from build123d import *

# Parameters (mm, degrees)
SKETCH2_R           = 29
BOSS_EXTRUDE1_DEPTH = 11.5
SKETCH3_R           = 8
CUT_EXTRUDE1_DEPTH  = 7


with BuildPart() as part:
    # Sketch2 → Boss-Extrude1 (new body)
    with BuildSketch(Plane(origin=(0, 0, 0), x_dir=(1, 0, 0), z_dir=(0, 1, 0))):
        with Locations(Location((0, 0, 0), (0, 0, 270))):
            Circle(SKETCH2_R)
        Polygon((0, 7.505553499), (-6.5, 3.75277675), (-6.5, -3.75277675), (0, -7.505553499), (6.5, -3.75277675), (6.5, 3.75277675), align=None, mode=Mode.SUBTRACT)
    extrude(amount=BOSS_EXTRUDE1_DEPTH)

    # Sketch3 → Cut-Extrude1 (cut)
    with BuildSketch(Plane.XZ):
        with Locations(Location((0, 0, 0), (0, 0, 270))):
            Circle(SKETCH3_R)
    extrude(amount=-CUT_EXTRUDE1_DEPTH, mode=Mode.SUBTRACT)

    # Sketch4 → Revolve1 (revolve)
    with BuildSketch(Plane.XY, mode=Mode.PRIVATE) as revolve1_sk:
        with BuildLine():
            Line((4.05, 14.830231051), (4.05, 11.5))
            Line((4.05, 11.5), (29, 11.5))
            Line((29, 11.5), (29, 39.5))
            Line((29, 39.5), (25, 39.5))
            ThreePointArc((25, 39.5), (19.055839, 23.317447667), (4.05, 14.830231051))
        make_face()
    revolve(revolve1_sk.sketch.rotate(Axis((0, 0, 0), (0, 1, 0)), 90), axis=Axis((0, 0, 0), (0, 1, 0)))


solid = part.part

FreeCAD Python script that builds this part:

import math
import FreeCAD as App
import Part
import Sketcher

V = App.Vector
Q = App.Units.Quantity

doc = App.newDocument("Part")
body = doc.addObject("PartDesign::Body", "Body")

sketch1 = body.newObject("Sketcher::SketchObject", "Sketch")
sketch1.AttachmentSupport = (doc.getObject("XZ_Plane"), [""])
sketch1.MapMode = "FlatFace"
sketch1.addGeometry([
    Part.Circle(V(0, 0, 0), V(0, 0, 1), 29),
    Part.LineSegment(V(-6, -4, 0), V(0, -8, 0)),
    Part.LineSegment(V(0, -8, 0), V(6, -4, 0)),
    Part.LineSegment(V(6, -4, 0), V(6, 4, 0)),
    Part.LineSegment(V(6, 4, 0), V(0, 8, 0)),
    Part.LineSegment(V(0, 8, 0), V(-6, 4, 0)),
    Part.LineSegment(V(-6, 4, 0), V(-6, -4, 0)),
], False)
sketch1.addConstraint([
    Sketcher.Constraint("Coincident", 1, 2, 2, 1),
    Sketcher.Constraint("Coincident", 2, 2, 3, 1),
    Sketcher.Constraint("Coincident", 3, 2, 4, 1),
    Sketcher.Constraint("Coincident", 4, 2, 5, 1),
    Sketcher.Constraint("Coincident", 5, 2, 6, 1),
    Sketcher.Constraint("Coincident", 6, 2, 1, 1),
    Sketcher.Constraint("Vertical", 3),
    Sketcher.Constraint("Vertical", 6),
    Sketcher.Constraint("Coincident", 0, 3, -1, 1),
    Sketcher.Constraint("Symmetric", 1, 2, 4, 2, -1, 1),
    Sketcher.Constraint("Symmetric", 2, 2, 5, 2, -1, 1),
    Sketcher.Constraint("PointOnObject", 1, 2, -2),
    Sketcher.Constraint("Parallel", 1, 4),
    Sketcher.Constraint("Horizontal", 3, 2, 5, 2),
    Sketcher.Constraint("Diameter", 0, 58.0),
    Sketcher.Constraint("Angle", 1, Q("-30 deg")),
    Sketcher.Constraint("DistanceX", 5, 2, 3, 2, 13.0),
    Sketcher.Constraint("DistanceY", 3, 1, 3, 2, 7.505554),
])
pad1 = body.newObject("PartDesign::Pad", "Pad")
pad1.Profile = sketch1
pad1.Length = 11.5
pad1.Reversed = True

sketch2 = body.newObject("Sketcher::SketchObject", "Sketch001")
sketch2.AttachmentSupport = (doc.getObject("XZ_Plane"), [""])
sketch2.MapMode = "FlatFace"
sketch2.addGeometry(Part.Circle(V(0, 0, 0), V(0, 0, 1), 8), False)
sketch2.addConstraint([
    Sketcher.Constraint("Coincident", 0, 3, -1, 1),
    Sketcher.Constraint("Diameter", 0, 16.0),
])
pocket1 = body.newObject("PartDesign::Pocket", "Pocket")
pocket1.Profile = sketch2
pocket1.Length = 7

sketch3 = body.newObject("Sketcher::SketchObject", "Sketch002")
sketch3.AttachmentSupport = (doc.getObject("XY_Plane"), [""])
sketch3.MapMode = "FlatFace"
sketch3.addGeometry([
    Part.LineSegment(V(4, 14.8, 0), V(4, 11.5, 0)),
    Part.LineSegment(V(4, 11.5, 0), V(29, 11.5, 0)),
    Part.LineSegment(V(29, 11.5, 0), V(29, 39.5, 0)),
    Part.LineSegment(V(29, 39.5, 0), V(25, 39.5, 0)),
    Part.ArcOfCircle(Part.Circle(V(0, 39.5, 0), V(0, 0, 1), 25), math.radians(-81), math.radians(0)),
], False)
sketch3.addConstraint([
    Sketcher.Constraint("Coincident", 0, 2, 1, 1),
    Sketcher.Constraint("Coincident", 1, 2, 2, 1),
    Sketcher.Constraint("Coincident", 2, 2, 3, 1),
    Sketcher.Constraint("Coincident", 3, 2, 4, 2),
    Sketcher.Constraint("Coincident", 4, 1, 0, 1),
    Sketcher.Constraint("Vertical", 0),
    Sketcher.Constraint("Horizontal", 1),
    Sketcher.Constraint("Vertical", 2),
    Sketcher.Constraint("Horizontal", 3),
    Sketcher.Constraint("PointOnObject", 4, 3, -2),
    Sketcher.Constraint("Horizontal", 4, 3, 2, 2),
    Sketcher.Constraint("Radius", 4, 25.0),
    Sketcher.Constraint("DistanceX", 3, 2, 3, 1, 4.0),
    Sketcher.Constraint("DistanceY", 2, 1, 2, 2, 28.0),
    Sketcher.Constraint("DistanceX", 1, 1, 1, 2, 24.95),
    Sketcher.Constraint("DistanceY", -1, 1, 4, 3, 39.5),
])
revolution = body.newObject("PartDesign::Revolution", "Revolution")
revolution.Profile = sketch3
revolution.ReferenceAxis = (sketch3, ["V_Axis"])
revolution.Angle = 360

doc.recompute()
